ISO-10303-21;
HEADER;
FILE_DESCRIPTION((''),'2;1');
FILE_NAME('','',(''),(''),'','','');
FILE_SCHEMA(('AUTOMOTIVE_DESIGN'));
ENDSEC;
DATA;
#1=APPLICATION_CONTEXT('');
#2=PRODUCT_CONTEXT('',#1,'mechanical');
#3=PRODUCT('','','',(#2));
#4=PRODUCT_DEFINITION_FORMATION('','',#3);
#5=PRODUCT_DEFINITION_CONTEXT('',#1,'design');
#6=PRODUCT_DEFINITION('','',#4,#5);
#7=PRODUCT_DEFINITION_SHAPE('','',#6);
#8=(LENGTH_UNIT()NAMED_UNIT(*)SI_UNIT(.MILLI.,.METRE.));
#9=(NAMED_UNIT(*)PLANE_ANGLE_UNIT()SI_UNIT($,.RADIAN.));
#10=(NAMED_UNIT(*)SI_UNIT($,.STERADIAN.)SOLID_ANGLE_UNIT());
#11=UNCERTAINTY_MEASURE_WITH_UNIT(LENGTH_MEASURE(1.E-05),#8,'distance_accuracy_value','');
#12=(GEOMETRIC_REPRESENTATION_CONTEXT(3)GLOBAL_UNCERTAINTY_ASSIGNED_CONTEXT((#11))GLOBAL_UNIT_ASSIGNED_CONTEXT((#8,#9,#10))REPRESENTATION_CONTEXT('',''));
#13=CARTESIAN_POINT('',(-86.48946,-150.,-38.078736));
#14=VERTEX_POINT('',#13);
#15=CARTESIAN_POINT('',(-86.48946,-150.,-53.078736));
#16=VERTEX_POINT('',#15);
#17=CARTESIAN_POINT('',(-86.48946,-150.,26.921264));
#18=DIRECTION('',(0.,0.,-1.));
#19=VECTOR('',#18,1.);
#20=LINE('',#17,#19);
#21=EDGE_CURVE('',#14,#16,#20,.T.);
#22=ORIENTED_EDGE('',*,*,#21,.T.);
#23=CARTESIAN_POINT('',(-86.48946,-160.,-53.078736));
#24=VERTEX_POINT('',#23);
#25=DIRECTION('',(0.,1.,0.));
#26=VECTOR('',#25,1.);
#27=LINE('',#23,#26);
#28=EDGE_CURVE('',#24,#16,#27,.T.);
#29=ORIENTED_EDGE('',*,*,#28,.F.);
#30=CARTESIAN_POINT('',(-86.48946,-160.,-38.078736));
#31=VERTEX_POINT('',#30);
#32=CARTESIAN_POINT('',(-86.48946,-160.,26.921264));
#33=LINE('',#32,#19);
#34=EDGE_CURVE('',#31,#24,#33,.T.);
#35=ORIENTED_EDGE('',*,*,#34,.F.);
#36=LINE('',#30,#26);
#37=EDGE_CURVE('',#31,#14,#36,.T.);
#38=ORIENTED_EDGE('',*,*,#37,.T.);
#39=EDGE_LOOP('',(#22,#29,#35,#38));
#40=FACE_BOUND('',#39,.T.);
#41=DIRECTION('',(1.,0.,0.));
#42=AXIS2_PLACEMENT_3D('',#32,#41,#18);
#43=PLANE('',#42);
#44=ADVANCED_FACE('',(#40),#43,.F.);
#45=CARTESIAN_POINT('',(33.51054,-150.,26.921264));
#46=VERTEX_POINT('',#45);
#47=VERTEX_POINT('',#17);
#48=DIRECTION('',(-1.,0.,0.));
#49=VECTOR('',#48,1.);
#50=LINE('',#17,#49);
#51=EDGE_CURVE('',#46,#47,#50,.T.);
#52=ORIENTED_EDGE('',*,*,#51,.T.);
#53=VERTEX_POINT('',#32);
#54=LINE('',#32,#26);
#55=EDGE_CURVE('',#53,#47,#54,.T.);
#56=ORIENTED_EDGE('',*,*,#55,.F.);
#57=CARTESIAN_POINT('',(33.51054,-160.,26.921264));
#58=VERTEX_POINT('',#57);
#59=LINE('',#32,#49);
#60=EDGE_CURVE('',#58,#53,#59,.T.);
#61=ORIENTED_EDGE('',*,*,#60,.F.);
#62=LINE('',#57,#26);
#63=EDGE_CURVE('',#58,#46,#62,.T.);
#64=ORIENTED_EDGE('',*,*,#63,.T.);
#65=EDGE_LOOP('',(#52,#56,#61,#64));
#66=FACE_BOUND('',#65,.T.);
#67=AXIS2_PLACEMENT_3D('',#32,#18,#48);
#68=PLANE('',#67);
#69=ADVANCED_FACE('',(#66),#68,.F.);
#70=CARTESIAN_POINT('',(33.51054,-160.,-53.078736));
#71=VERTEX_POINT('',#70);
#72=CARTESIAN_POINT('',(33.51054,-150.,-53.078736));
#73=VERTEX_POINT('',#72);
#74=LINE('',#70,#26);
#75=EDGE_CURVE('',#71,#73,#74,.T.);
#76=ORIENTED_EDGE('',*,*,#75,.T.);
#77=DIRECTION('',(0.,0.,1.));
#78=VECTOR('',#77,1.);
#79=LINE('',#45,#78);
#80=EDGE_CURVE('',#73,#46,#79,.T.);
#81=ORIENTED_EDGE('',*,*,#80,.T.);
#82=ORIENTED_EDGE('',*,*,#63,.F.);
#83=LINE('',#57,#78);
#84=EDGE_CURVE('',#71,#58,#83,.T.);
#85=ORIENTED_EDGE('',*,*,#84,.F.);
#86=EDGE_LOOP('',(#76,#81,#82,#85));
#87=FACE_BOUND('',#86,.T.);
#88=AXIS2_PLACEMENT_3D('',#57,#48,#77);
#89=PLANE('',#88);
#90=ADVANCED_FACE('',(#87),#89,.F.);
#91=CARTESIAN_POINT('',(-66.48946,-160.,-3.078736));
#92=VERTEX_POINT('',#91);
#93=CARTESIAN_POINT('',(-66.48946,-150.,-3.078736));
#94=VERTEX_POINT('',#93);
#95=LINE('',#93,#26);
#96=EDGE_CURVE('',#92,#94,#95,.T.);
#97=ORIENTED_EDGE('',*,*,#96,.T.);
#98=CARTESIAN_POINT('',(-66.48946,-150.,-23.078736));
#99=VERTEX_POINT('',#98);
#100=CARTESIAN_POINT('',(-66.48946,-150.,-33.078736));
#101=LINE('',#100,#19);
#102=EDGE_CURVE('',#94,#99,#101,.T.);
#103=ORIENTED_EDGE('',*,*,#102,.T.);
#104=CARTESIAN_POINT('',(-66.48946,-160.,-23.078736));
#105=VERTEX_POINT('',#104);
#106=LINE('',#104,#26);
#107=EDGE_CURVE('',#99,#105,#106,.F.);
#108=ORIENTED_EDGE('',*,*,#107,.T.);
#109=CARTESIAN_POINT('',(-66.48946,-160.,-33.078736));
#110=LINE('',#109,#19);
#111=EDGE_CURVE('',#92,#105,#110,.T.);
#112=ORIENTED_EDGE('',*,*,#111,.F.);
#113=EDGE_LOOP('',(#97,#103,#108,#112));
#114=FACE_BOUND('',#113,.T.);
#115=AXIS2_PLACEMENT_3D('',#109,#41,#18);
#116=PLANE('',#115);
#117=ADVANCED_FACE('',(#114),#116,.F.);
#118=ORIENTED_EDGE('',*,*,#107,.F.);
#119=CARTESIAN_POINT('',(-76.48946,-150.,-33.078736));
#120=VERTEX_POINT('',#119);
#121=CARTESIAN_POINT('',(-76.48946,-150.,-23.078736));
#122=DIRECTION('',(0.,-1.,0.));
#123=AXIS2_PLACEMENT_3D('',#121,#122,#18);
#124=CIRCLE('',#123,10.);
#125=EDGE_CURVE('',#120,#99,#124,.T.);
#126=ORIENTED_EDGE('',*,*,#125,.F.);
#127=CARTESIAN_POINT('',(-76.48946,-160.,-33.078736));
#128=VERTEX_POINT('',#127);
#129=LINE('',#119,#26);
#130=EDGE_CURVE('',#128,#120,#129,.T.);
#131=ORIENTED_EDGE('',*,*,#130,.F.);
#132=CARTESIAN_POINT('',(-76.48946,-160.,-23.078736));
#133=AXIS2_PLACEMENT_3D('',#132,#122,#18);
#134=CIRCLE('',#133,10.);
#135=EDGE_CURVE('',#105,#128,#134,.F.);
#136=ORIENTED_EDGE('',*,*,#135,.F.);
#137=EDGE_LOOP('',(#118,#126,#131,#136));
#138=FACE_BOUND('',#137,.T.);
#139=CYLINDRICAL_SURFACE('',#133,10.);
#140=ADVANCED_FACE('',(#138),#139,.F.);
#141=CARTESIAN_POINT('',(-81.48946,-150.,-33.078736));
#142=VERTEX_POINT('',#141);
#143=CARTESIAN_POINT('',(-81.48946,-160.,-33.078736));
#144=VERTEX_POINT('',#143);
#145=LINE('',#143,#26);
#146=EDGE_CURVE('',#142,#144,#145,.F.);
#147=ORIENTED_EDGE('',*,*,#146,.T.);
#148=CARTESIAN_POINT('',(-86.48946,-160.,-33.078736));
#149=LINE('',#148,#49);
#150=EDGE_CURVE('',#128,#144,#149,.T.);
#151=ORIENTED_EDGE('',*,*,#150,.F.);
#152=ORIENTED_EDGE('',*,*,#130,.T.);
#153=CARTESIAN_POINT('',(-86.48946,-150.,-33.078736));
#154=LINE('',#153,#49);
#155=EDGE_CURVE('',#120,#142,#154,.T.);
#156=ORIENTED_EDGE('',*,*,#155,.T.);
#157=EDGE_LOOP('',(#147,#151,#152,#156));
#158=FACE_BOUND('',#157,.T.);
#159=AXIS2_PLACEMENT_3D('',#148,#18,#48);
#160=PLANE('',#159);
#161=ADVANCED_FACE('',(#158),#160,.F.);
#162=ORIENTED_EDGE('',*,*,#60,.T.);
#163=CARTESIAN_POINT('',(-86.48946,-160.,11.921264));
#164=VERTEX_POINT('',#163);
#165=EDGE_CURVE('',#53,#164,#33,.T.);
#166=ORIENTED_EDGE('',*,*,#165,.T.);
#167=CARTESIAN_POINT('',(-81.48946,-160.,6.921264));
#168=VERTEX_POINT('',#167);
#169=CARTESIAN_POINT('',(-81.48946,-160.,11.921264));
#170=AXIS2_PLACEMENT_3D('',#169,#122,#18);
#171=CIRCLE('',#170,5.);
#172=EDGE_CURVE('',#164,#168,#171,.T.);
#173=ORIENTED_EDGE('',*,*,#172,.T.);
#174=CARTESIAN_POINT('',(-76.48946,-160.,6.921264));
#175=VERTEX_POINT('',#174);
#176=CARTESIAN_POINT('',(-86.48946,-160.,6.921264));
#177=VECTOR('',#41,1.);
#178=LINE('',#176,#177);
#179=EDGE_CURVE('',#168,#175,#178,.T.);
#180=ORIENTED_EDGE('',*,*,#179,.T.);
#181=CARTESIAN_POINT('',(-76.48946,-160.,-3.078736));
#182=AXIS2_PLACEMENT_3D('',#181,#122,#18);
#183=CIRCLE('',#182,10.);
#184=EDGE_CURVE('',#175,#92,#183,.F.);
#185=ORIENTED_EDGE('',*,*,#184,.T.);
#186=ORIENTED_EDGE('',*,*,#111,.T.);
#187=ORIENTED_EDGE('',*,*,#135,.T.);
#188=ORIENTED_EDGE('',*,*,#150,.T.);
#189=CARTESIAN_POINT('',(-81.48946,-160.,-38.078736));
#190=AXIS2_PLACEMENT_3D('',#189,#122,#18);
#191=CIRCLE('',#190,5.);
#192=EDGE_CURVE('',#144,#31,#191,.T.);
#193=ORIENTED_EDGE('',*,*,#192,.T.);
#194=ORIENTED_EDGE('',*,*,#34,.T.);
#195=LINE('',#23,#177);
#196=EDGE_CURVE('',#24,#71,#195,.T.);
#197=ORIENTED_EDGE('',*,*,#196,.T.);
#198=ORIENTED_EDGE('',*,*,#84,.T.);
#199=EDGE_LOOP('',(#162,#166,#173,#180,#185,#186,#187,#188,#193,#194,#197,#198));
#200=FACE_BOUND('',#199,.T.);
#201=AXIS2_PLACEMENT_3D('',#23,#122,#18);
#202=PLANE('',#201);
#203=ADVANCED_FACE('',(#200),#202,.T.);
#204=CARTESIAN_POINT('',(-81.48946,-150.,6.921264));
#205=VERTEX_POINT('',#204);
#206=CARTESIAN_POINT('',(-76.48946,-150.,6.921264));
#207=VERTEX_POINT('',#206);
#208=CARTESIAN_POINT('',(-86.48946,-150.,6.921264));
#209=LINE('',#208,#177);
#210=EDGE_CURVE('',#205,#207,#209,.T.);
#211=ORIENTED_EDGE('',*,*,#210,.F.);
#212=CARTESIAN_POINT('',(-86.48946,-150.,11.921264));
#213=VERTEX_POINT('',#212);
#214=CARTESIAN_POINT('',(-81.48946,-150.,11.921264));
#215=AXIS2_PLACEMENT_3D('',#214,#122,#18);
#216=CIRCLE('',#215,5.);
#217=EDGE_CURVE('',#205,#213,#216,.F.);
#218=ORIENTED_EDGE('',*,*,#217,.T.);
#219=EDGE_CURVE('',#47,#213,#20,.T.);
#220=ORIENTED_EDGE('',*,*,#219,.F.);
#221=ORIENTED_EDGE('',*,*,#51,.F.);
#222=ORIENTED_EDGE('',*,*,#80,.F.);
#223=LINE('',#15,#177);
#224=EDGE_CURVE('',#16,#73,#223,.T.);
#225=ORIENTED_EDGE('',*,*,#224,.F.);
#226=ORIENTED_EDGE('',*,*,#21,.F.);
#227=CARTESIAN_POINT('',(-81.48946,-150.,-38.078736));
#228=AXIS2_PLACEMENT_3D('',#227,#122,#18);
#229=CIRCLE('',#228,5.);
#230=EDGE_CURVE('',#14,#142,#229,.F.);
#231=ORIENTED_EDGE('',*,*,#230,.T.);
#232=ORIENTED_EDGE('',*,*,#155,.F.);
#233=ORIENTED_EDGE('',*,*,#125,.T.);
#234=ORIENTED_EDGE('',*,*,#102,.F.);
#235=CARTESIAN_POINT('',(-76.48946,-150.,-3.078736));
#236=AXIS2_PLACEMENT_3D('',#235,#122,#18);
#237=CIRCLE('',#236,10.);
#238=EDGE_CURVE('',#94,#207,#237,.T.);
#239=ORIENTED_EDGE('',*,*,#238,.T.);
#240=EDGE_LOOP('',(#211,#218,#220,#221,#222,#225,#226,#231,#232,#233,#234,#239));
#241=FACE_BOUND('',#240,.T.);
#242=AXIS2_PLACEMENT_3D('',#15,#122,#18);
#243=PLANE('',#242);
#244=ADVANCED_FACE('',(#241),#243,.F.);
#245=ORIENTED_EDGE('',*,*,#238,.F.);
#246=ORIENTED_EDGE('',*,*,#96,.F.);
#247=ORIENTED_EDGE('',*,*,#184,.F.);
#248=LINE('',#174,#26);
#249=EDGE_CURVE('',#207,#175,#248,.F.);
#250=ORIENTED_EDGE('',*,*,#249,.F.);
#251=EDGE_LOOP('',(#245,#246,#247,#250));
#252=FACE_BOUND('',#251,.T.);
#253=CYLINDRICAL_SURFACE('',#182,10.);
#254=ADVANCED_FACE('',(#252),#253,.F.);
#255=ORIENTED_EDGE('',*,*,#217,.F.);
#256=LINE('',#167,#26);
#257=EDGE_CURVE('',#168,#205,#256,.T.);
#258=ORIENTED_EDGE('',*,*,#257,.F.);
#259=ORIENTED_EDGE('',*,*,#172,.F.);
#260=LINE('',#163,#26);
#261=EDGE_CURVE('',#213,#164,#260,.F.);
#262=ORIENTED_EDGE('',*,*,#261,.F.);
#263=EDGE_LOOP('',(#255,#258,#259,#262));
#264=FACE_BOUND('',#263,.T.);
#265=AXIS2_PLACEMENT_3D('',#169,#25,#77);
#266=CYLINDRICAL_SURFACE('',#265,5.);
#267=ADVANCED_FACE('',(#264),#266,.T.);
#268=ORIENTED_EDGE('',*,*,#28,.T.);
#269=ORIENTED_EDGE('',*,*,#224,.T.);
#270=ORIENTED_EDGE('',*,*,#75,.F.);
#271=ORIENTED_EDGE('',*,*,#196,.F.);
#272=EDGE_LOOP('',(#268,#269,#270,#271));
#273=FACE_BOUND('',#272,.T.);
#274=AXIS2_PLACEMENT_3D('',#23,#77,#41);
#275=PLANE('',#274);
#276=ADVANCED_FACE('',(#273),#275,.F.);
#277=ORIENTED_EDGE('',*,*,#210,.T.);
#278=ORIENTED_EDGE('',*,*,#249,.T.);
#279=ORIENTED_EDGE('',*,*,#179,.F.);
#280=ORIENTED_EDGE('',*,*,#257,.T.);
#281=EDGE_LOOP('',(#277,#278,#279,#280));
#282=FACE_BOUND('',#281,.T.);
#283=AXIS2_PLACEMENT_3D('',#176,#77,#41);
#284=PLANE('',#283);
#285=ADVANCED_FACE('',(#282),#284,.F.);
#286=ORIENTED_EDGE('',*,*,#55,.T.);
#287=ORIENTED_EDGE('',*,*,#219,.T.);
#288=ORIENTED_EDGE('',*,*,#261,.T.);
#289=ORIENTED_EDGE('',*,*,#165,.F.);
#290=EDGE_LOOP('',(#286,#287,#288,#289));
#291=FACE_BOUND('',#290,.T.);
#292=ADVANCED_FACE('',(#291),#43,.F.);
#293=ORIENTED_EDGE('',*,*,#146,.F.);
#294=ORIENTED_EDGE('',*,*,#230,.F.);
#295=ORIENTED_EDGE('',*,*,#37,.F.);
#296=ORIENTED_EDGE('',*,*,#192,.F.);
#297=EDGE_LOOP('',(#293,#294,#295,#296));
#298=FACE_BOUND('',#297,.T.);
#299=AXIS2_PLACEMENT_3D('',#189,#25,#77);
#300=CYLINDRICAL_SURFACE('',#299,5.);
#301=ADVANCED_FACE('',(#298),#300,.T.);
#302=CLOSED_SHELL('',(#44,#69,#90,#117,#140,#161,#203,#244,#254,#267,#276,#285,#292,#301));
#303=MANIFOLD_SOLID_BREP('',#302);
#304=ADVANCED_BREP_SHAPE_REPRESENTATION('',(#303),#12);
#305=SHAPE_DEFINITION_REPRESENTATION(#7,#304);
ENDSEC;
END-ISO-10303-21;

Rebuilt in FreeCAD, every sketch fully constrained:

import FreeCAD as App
import Part
import Sketcher
Q = App.Units.Quantity


def edges_at(feature, points):
    """Names of the edges that pass closest to the given points."""
    edges = feature.Shape.Edges
    near = lambda p: min(range(len(edges)), key=lambda i: edges[i].distToShape(Part.Vertex(*p))[0])
    return sorted({f"Edge{near(p) + 1}" for p in points})


def add_polygon(sketch, points):
    """Adds a closed chain of lines whose ends are joined by coincident constraints."""
    first, n = sketch.GeometryCount, len(points)
    for a, b in zip(points, points[1:] + points[:1]):
        sketch.addGeometry(Part.LineSegment(App.Vector(*a, 0), App.Vector(*b, 0)), False)
    for i in range(n):
        sketch.addConstraint(Sketcher.Constraint("Coincident", first + i, 2, first + (i + 1) % n, 1))

doc = App.newDocument("Part")
body = doc.addObject("PartDesign::Body", "Body")

# Sketch on XZ plane
sketch1 = doc.addObject("Sketcher::SketchObject", "Sketch")
body.addObject(sketch1)
sketch1.AttachmentSupport = (doc.XZ_Plane, [""])
sketch1.MapMode = "FlatFace"
sketch1.AttachmentOffset = App.Placement(App.Vector(0, 0, 150), App.Rotation())
add_polygon(sketch1, [(-86, 27), (-86, -53), (34, -53), (34, 27)])  # lines 0-3
sketch1.addConstraint([
    Sketcher.Constraint("Vertical", 0),
    Sketcher.Constraint("Horizontal", 1),
    Sketcher.Constraint("Vertical", 2),
    Sketcher.Constraint("Horizontal", 3),
    Sketcher.Constraint("DistanceX", 1, 1, 1, 2, Q("120 mm")),
    Sketcher.Constraint("DistanceY", 0, 2, 0, 1, Q("80 mm")),
    Sketcher.Constraint("DistanceX", 0, 2, -1, 1, Q("86.48946 mm")),
    Sketcher.Constraint("DistanceY", 0, 2, -1, 1, Q("53.078736 mm")),
])
pad1 = doc.addObject("PartDesign::Pad", "Pad")
body.addObject(pad1)
pad1.Profile = sketch1
pad1.Length = 10

# Sketch on XZ plane
sketch2 = doc.addObject("Sketcher::SketchObject", "Sketch001")
body.addObject(sketch2)
sketch2.AttachmentSupport = (doc.XZ_Plane, [""])
sketch2.MapMode = "FlatFace"
sketch2.AttachmentOffset = App.Placement(App.Vector(0, 0, 150), App.Rotation())
add_polygon(sketch2, [(-86, -33), (-86, 7), (-66, 7), (-66, -33)])  # lines 0-3
sketch2.addConstraint([
    Sketcher.Constraint("Vertical", 0),
    Sketcher.Constraint("Horizontal", 1),
    Sketcher.Constraint("Vertical", 2),
    Sketcher.Constraint("Horizontal", 3),
    Sketcher.Constraint("DistanceX", 1, 1, 1, 2, Q("20 mm")),
    Sketcher.Constraint("DistanceY", 0, 1, 0, 2, Q("40 mm")),
    Sketcher.Constraint("DistanceX", 0, 2, -1, 1, Q("86.48946 mm")),
    Sketcher.Constraint("DistanceY", -1, 1, 0, 2, Q("6.921264 mm")),
])
pocket1 = doc.addObject("PartDesign::Pocket", "Pocket")
body.addObject(pocket1)
pocket1.Profile = sketch2
pocket1.Type = "ThroughAll"
pocket1.Reversed = True
doc.recompute()

fillet = doc.addObject("PartDesign::Fillet", "Fillet")
body.addObject(fillet)
fillet.Base = (pocket1, edges_at(pocket1, [(-66.489, -155, -33.079), (-66.489, -155, 6.921)]))
fillet.Radius = 10
doc.recompute()

fillet2 = doc.addObject("PartDesign::Fillet", "Fillet001")
body.addObject(fillet2)
fillet2.Base = (fillet, edges_at(fillet, [(-86.489, -155, 6.921), (-86.489, -155, -33.079)]))
fillet2.Radius = 5

doc.recompute()
